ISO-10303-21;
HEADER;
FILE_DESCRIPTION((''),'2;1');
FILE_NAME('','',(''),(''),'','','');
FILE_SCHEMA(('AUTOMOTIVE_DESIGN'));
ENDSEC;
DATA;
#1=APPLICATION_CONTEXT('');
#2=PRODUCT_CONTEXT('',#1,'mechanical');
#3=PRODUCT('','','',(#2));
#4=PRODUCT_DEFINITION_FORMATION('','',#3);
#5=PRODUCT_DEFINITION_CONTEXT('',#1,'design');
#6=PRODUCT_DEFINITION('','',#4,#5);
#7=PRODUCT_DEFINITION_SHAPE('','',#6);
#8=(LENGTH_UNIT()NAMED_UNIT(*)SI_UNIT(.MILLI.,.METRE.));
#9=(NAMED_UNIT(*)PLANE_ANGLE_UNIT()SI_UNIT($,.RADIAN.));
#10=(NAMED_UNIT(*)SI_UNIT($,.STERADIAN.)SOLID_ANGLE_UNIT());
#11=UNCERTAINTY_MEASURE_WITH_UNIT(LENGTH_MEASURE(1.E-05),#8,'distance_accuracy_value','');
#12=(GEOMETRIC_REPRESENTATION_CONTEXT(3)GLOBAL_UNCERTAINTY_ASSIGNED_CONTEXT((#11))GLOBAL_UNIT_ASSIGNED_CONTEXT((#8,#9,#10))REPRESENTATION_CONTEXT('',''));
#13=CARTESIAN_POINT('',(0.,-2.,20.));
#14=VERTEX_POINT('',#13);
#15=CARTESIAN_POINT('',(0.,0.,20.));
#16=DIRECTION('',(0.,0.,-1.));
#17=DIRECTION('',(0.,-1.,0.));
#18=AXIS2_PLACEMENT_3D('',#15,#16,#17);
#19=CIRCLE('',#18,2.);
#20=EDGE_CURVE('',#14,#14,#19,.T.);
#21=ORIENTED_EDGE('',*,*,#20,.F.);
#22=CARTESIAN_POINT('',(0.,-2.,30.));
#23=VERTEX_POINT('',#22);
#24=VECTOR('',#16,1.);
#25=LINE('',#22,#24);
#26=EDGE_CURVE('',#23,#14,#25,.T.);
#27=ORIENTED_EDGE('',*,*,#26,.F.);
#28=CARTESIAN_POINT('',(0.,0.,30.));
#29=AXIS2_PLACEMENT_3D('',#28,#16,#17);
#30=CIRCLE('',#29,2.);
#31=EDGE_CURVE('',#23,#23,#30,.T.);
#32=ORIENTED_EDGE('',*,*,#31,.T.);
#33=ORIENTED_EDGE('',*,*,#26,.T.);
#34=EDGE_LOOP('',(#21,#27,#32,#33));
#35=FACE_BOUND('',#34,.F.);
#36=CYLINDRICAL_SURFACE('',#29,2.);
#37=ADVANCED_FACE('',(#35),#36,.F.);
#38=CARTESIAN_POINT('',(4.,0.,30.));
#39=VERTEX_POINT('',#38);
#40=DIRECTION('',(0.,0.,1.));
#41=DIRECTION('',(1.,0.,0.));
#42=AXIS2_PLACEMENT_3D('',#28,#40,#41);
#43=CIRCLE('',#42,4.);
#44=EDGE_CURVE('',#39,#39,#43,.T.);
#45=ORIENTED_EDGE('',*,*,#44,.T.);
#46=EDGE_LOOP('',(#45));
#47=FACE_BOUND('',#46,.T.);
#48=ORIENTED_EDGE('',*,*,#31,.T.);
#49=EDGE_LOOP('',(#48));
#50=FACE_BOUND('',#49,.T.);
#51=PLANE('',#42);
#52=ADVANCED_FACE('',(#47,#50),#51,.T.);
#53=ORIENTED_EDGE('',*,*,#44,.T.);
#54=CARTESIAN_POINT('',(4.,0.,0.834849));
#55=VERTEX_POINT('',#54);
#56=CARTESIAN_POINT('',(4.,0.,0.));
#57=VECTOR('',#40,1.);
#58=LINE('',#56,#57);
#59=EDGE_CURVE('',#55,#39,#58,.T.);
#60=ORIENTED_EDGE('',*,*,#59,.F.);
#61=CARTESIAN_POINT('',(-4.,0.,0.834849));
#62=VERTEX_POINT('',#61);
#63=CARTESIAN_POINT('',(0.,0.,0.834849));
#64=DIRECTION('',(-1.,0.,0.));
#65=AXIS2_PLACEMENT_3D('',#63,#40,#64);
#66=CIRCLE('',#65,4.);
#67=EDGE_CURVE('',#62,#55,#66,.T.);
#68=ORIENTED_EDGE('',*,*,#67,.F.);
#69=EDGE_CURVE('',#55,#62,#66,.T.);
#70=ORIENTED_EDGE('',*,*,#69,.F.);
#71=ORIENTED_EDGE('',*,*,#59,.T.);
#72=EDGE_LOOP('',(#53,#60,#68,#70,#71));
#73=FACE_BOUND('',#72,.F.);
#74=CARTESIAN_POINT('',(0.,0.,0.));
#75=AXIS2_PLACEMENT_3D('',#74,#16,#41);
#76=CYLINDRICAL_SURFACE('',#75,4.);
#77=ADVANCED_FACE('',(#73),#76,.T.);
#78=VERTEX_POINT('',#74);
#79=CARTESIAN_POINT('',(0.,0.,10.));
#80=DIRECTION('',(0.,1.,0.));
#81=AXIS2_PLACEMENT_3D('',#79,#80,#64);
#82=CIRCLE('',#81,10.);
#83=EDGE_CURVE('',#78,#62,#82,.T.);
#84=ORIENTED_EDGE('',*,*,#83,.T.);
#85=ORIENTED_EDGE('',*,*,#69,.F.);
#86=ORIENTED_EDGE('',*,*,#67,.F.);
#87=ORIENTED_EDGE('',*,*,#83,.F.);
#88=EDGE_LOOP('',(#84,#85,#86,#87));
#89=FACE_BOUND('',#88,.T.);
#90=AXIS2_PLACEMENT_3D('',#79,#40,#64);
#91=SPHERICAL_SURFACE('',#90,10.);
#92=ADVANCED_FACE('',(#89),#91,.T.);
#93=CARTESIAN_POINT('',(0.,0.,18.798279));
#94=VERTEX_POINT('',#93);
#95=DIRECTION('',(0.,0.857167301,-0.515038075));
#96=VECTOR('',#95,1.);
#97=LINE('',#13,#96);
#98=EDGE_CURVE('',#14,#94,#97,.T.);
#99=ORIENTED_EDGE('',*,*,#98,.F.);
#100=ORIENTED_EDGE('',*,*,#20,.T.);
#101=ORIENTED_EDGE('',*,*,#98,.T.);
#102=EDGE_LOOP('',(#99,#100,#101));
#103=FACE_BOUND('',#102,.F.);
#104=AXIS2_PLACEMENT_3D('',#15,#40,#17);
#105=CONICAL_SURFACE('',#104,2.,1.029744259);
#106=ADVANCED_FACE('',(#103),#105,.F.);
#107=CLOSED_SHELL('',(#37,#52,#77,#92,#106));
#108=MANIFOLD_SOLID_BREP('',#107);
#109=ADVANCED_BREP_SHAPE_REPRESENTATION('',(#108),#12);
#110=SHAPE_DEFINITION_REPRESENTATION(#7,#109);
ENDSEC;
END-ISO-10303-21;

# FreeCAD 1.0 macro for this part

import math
import FreeCAD as App
import Part
import Sketcher

V = App.Vector
Q = App.Units.Quantity

doc = App.newDocument("Part")
body = doc.addObject("PartDesign::Body", "Body")

sketch1 = doc.addObject("Sketcher::SketchObject", "Sketch")
body.addObject(sketch1)
sketch1.AttachmentSupport = (doc.XY_Plane, [""])
sketch1.MapMode = "FlatFace"
sketch1.addGeometry(Part.Circle(V(0, 0, 0), V(0, 0, 1), 4), False)
sketch1.addConstraint([
    Sketcher.Constraint("Coincident", 0, 3, -1, 1),
    Sketcher.Constraint("Diameter", 0, Q("8 mm")),
])
pad1 = doc.addObject("PartDesign::Pad", "Pad")
body.addObject(pad1)
pad1.Profile = sketch1
pad1.Length = 30

sketch2 = doc.addObject("Sketcher::SketchObject", "Sketch001")
body.addObject(sketch2)
sketch2.AttachmentSupport = (doc.XY_Plane, [""])
sketch2.MapMode = "FlatFace"
sketch2.AttachmentOffset = App.Placement(V(0, 0, 30), App.Rotation())
sketch2.addGeometry(Part.Circle(V(0, 0, 0), V(0, 0, 1), 2), False)
sketch2.addConstraint([
    Sketcher.Constraint("Coincident", 0, 3, -1, 1),
    Sketcher.Constraint("Diameter", 0, Q("4 mm")),
])
doc.recompute()
hole = doc.addObject("PartDesign::Hole", "Hole")
body.addObject(hole)
hole.Profile = sketch2
hole.ThreadType = "None"
hole.Diameter = 4
hole.DepthType = "Dimension"
hole.Depth = 10
hole.DrillPoint = "Angled"
hole.DrillPointAngle = 118

sketch3 = doc.addObject("Sketcher::SketchObject", "Sketch002")
body.addObject(sketch3)
sketch3.AttachmentSupport = (doc.XZ_Plane, [""])
sketch3.MapMode = "FlatFace"
sketch3.addGeometry([
    Part.ArcOfCircle(Part.Circle(V(0, 10, 0), V(0, 0, 1), 10), math.radians(-114), math.radians(-90)),
    Part.LineSegment(V(0, 0, 0), V(-4, 0, 0)),
    Part.LineSegment(V(-4, 0, 0), V(-4, 0.8, 0)),
], False)
sketch3.addConstraint([
    Sketcher.Constraint("Tangent", 0, 2, 1, 1),
    Sketcher.Constraint("Coincident", 1, 2, 2, 1),
    Sketcher.Constraint("Coincident", 2, 2, 0, 1),
    Sketcher.Constraint("Horizontal", 1),
    Sketcher.Constraint("Vertical", 2),
    Sketcher.Constraint("Coincident", 0, 2, -1, 1),
    Sketcher.Constraint("Radius", 0, Q("10 mm")),
    Sketcher.Constraint("DistanceX", 1, 2, 1, 1, Q("4 mm")),
])
groove = doc.addObject("PartDesign::Groove", "Groove")
body.addObject(groove)
groove.Profile = sketch3
groove.ReferenceAxis = (sketch3, ["V_Axis"])
groove.Angle = 360

doc.recompute()
